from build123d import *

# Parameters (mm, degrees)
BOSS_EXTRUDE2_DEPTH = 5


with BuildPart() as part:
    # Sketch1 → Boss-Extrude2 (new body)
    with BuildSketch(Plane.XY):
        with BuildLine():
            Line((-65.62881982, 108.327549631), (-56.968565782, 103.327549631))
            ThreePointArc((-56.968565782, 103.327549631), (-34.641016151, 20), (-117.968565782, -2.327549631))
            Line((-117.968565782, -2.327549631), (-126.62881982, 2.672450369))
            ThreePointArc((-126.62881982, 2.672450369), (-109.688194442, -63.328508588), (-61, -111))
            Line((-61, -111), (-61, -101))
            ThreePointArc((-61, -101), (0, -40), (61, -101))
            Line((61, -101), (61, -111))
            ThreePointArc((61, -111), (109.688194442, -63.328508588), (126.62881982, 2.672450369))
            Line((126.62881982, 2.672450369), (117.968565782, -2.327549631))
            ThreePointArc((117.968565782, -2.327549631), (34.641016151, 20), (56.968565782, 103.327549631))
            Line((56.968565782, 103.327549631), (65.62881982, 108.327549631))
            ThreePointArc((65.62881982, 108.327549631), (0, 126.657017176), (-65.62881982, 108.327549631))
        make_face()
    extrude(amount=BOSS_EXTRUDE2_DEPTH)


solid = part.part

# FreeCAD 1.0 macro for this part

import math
import FreeCAD as App
import Part
import Sketcher
from FreeCAD import Vector
Q = App.Units.Quantity

doc = App.newDocument("Part")
body = doc.addObject("PartDesign::Body", "Body")

sketch1 = body.newObject("Sketcher::SketchObject", "Sketch")
sketch1.AttachmentSupport = (doc.getObject("XY_Plane"), [""])
sketch1.MapMode = "FlatFace"
sketch1.addGeometry([
    Part.LineSegment(Vector(-66, 108, 0), Vector(-57, 103, 0)),
    Part.ArcOfCircle(Part.Circle(Vector(-87, 50, 0), Vector(0, 0, 1), 61), math.radians(-120), math.radians(60)),
    Part.LineSegment(Vector(-118, -2, 0), Vector(-127, 3, 0)),
    Part.ArcOfCircle(Part.Circle(Vector(0, 0, 0), Vector(0, 0, 1), 127), math.radians(179), math.radians(241)),
    Part.LineSegment(Vector(-61, -111, 0), Vector(-61, -101, 0)),
    Part.ArcOfCircle(Part.Circle(Vector(0, -101, 0), Vector(0, 0, 1), 61), math.radians(0), math.radians(180)),
    Part.LineSegment(Vector(61, -101, 0), Vector(61, -111, 0)),
    Part.ArcOfCircle(Part.Circle(Vector(0, 0, 0), Vector(0, 0, 1), 127), math.radians(-61), math.radians(1)),
    Part.LineSegment(Vector(127, 3, 0), Vector(118, -2, 0)),
    Part.ArcOfCircle(Part.Circle(Vector(87, 50, 0), Vector(0, 0, 1), 61), math.radians(120), math.radians(300)),
    Part.LineSegment(Vector(57, 103, 0), Vector(66, 108, 0)),
    Part.ArcOfCircle(Part.Circle(Vector(0, 0, 0), Vector(0, 0, 1), 127), math.radians(59), math.radians(121)),
], False)
sketch1.addConstraint([
    Sketcher.Constraint("Tangent", 0, 2, 1, 2),
    Sketcher.Constraint("Tangent", 1, 1, 2, 1),
    Sketcher.Constraint("Coincident", 2, 2, 3, 1),
    Sketcher.Constraint("Coincident", 3, 2, 4, 1),
    Sketcher.Constraint("Tangent", 4, 2, 5, 2),
    Sketcher.Constraint("Tangent", 5, 1, 6, 1),
    Sketcher.Constraint("Coincident", 6, 2, 7, 1),
    Sketcher.Constraint("Coincident", 7, 2, 8, 1),
    Sketcher.Constraint("Tangent", 8, 2, 9, 2),
    Sketcher.Constraint("Tangent", 9, 1, 10, 1),
    Sketcher.Constraint("Coincident", 10, 2, 11, 1),
    Sketcher.Constraint("Coincident", 11, 2, 0, 1),
    Sketcher.Constraint("Vertical", 4),
    Sketcher.Constraint("Vertical", 6),
    Sketcher.Constraint("Coincident", 3, 3, -1, 1),
    Sketcher.Constraint("Coincident", 7, 3, -1, 1),
    Sketcher.Constraint("Coincident", 11, 3, -1, 1),
    Sketcher.Constraint("Equal", 1, 5),
    Sketcher.Constraint("Equal", 3, 7),
    Sketcher.Constraint("Equal", 5, 9),
    Sketcher.Constraint("Equal", 7, 11),
    Sketcher.Constraint("Symmetric", 1, 3, 9, 3, -2),
    Sketcher.Constraint("PointOnObject", 5, 3, -2),
    Sketcher.Constraint("Parallel", 0, 2),
    Sketcher.Constraint("Parallel", 8, 10),
    Sketcher.Constraint("Horizontal", 1, 1, 8, 2),
    Sketcher.Constraint("Equal", 0, 2),
    Sketcher.Constraint("Radius", 1, Q("61 mm")),
    Sketcher.Constraint("DistanceY", 4, 1, 4, 2, Q("10 mm")),
    Sketcher.Constraint("Angle", 0, Q("-30 deg")),
    Sketcher.Constraint("Distance", 0, Q("10 mm")),
    Sketcher.Constraint("DistanceY", 5, 3, -1, 1, Q("101 mm")),
])
pad1 = body.newObject("PartDesign::Pad", "Pad")
pad1.Profile = sketch1
pad1.Length = 5

doc.recompute()
